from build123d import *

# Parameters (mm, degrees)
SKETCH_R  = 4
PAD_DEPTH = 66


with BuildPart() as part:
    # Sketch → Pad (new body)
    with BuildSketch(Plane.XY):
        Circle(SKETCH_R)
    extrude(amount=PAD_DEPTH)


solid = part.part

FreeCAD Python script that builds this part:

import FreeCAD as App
import Part
import Sketcher
from FreeCAD import Vector
Q = App.Units.Quantity

doc = App.newDocument("Part")
body = doc.addObject("PartDesign::Body", "Body")

sketch1 = doc.addObject("Sketcher::SketchObject", "Sketch")
body.addObject(sketch1)
sketch1.AttachmentSupport = (doc.XY_Plane, [""])
sketch1.MapMode = "FlatFace"
sketch1.addGeometry(Part.Circle(Vector(0, 0, 0), Vector(0, 0, 1), 4), False)
sketch1.addConstraint([
    Sketcher.Constraint("Coincident", 0, 3, -1, 1),
    Sketcher.Constraint("Diameter", 0, Q("8 mm")),
])
pad1 = doc.addObject("PartDesign::Pad", "Pad")
body.addObject(pad1)
pad1.Profile = sketch1
pad1.Length = 66

doc.recompute()
